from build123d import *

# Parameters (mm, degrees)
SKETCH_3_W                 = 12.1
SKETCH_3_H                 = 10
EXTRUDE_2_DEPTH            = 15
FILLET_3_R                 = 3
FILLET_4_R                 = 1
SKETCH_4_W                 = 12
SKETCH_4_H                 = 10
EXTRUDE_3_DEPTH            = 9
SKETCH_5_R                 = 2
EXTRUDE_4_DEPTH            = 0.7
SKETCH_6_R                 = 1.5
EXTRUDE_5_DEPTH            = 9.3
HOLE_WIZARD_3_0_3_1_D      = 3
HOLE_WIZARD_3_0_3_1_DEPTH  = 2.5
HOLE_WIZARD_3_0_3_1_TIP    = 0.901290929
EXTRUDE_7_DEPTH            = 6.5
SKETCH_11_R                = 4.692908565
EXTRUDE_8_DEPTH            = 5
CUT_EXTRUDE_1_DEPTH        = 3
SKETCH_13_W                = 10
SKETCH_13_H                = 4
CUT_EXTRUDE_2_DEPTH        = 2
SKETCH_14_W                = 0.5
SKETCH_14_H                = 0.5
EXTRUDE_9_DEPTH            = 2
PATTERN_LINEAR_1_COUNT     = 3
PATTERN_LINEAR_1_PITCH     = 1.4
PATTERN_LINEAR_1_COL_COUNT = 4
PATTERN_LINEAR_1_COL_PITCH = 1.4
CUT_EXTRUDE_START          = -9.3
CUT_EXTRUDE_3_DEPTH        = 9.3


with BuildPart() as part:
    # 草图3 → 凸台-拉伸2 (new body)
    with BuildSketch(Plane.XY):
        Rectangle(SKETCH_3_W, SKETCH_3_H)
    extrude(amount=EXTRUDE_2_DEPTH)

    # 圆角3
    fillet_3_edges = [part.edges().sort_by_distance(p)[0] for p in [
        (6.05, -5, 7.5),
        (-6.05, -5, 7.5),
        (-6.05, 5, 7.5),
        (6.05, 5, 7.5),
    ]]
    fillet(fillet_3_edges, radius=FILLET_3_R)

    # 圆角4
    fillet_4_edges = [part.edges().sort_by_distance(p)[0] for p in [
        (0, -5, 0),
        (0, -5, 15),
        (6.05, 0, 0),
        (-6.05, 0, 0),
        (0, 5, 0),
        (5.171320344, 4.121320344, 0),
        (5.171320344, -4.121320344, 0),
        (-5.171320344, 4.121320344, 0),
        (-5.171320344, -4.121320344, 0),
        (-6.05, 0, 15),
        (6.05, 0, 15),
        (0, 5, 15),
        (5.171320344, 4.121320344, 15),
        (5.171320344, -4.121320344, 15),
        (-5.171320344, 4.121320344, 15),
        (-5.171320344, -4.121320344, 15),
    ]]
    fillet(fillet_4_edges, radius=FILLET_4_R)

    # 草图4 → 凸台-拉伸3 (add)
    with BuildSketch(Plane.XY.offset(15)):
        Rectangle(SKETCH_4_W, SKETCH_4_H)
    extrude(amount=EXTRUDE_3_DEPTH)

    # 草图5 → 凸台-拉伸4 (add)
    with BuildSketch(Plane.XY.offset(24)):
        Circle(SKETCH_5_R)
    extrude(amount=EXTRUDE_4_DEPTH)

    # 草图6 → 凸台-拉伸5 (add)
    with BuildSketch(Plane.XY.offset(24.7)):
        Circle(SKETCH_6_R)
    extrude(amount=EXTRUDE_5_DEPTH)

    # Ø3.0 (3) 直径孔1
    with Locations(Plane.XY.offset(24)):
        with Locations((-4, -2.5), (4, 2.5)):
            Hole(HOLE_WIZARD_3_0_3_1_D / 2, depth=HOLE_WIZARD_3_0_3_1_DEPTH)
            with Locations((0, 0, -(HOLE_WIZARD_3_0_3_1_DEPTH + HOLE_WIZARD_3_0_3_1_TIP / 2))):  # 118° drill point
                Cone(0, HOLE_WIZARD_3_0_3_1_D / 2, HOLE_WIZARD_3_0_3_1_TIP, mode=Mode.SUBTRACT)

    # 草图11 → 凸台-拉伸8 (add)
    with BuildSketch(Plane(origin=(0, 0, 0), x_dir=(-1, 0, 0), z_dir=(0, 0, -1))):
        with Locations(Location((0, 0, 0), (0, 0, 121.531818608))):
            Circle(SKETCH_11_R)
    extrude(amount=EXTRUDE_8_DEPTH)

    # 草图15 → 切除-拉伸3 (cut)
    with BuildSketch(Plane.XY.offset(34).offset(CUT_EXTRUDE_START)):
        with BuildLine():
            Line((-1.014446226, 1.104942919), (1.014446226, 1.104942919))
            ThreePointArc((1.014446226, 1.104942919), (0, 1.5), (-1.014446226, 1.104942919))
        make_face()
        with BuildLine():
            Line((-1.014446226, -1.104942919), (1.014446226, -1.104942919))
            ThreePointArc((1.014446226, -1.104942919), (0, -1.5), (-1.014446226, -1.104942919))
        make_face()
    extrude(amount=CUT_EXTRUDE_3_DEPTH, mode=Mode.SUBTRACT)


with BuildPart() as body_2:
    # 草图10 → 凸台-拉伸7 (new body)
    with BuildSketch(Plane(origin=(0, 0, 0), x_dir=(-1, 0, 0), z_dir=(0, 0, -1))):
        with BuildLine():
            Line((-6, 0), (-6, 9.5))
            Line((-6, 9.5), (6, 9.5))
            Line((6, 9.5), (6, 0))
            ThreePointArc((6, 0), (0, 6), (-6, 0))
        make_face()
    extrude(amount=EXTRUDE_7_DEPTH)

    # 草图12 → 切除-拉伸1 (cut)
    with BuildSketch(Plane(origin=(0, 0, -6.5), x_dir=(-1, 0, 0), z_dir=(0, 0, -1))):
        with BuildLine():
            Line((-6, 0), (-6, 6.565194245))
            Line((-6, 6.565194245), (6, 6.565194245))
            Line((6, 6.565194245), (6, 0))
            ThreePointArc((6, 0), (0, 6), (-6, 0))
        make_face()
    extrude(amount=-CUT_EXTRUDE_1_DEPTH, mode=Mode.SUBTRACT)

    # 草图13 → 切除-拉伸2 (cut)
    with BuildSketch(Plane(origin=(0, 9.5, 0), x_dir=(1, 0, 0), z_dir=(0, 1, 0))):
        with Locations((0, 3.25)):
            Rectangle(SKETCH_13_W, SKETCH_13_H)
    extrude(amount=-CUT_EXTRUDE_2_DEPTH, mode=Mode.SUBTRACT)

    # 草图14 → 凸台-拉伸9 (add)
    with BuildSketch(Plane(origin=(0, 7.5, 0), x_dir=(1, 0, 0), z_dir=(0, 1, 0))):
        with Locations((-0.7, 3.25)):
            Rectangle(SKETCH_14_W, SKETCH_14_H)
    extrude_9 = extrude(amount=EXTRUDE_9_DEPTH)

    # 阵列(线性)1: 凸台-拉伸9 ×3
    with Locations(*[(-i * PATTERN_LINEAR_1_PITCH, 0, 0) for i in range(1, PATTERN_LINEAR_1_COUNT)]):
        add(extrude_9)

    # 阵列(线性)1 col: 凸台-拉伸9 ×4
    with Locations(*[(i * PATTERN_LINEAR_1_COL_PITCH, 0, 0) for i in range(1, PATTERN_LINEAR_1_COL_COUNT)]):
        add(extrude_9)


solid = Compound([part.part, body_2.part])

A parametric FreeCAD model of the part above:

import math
import FreeCAD as App
import Part
import Sketcher
from FreeCAD import Vector
Q = App.Units.Quantity


def edges_at(feature, points):
    """Names of the edges that pass closest to the given points."""
    edges = feature.Shape.Edges
    near = lambda p: min(range(len(edges)), key=lambda i: edges[i].distToShape(Part.Vertex(*p))[0])
    return sorted({f"Edge{near(p) + 1}" for p in points})

doc = App.newDocument("Part")
body = doc.addObject("PartDesign::Body", "Body")

# Sketch on XY plane
sketch1 = body.newObject("Sketcher::SketchObject", "Sketch")
sketch1.AttachmentSupport = (doc.getObject("XY_Plane"), [""])
sketch1.MapMode = "FlatFace"
sketch1.addGeometry([
    Part.LineSegment(Vector(-6.05, 5, 0), Vector(-6.05, -5, 0)),
    Part.LineSegment(Vector(-6.05, -5, 0), Vector(6.05, -5, 0)),
    Part.LineSegment(Vector(6.05, -5, 0), Vector(6.05, 5, 0)),
    Part.LineSegment(Vector(6.05, 5, 0), Vector(-6.05, 5, 0)),
], False)
sketch1.addConstraint([
    Sketcher.Constraint("Coincident", 0, 2, 1, 1),
    Sketcher.Constraint("Coincident", 1, 2, 2, 1),
    Sketcher.Constraint("Coincident", 2, 2, 3, 1),
    Sketcher.Constraint("Coincident", 3, 2, 0, 1),
    Sketcher.Constraint("Vertical", 0),
    Sketcher.Constraint("Horizontal", 1),
    Sketcher.Constraint("Vertical", 2),
    Sketcher.Constraint("Horizontal", 3),
    Sketcher.Constraint("Symmetric", 0, 2, 2, 2, -1, 1),
    Sketcher.Constraint("DistanceY", 0, 2, 0, 1, Q("10 mm")),
    Sketcher.Constraint("DistanceX", 1, 1, 1, 2, Q("12.1 mm")),
])
pad1 = body.newObject("PartDesign::Pad", "Pad")
pad1.Profile = sketch1
pad1.Length = 15
doc.recompute()

fillet = body.newObject("PartDesign::Fillet", "Fillet")
fillet.Base = (pad1, edges_at(pad1, [
    (6.05, -5, 7.5),
    (-6.05, -5, 7.5),
    (-6.05, 5, 7.5),
    (6.05, 5, 7.5),
]))
fillet.Radius = 3
doc.recompute()

fillet2 = body.newObject("PartDesign::Fillet", "Fillet001")
fillet2.Base = (fillet, edges_at(fillet, [
    (0, -5, 0),
    (0, -5, 15),
    (6.05, 0, 0),
    (-6.05, 0, 0),
    (0, 5, 0),
    (5.171, 4.121, 0),
    (5.171, -4.121, 0),
    (-5.171, 4.121, 0),
    (-5.171, -4.121, 0),
    (-6.05, 0, 15),
    (6.05, 0, 15),
    (0, 5, 15),
    (5.171, 4.121, 15),
    (5.171, -4.121, 15),
    (-5.171, 4.121, 15),
    (-5.171, -4.121, 15),
]))
fillet2.Radius = 1

# Sketch on XY plane
sketch2 = body.newObject("Sketcher::SketchObject", "Sketch001")
sketch2.AttachmentSupport = (doc.getObject("XY_Plane"), [""])
sketch2.MapMode = "FlatFace"
sketch2.AttachmentOffset = App.Placement(Vector(0, 0, 15), App.Rotation())
sketch2.addGeometry([
    Part.LineSegment(Vector(-6, 5, 0), Vector(-6, -5, 0)),
    Part.LineSegment(Vector(-6, -5, 0), Vector(6, -5, 0)),
    Part.LineSegment(Vector(6, -5, 0), Vector(6, 5, 0)),
    Part.LineSegment(Vector(6, 5, 0), Vector(-6, 5, 0)),
], False)
sketch2.addConstraint([
    Sketcher.Constraint("Coincident", 0, 2, 1, 1),
    Sketcher.Constraint("Coincident", 1, 2, 2, 1),
    Sketcher.Constraint("Coincident", 2, 2, 3, 1),
    Sketcher.Constraint("Coincident", 3, 2, 0, 1),
    Sketcher.Constraint("Vertical", 0),
    Sketcher.Constraint("Horizontal", 1),
    Sketcher.Constraint("Vertical", 2),
    Sketcher.Constraint("Horizontal", 3),
    Sketcher.Constraint("Symmetric", 0, 2, 2, 2, -1, 1),
    Sketcher.Constraint("DistanceX", 1, 1, 1, 2, Q("12 mm")),
    Sketcher.Constraint("DistanceY", 0, 2, 0, 1, Q("10 mm")),
])
pad2 = body.newObject("PartDesign::Pad", "Pad001")
pad2.Profile = sketch2
pad2.Length = 9

# Sketch on XY plane
sketch3 = body.newObject("Sketcher::SketchObject", "Sketch002")
sketch3.AttachmentSupport = (doc.getObject("XY_Plane"), [""])
sketch3.MapMode = "FlatFace"
sketch3.AttachmentOffset = App.Placement(Vector(0, 0, 24), App.Rotation())
sketch3.addGeometry(Part.Circle(Vector(0, 0, 0), Vector(0, 0, 1), 2), False)
sketch3.addConstraint([
    Sketcher.Constraint("Coincident", 0, 3, -1, 1),
    Sketcher.Constraint("Diameter", 0, Q("4 mm")),
])
pad3 = body.newObject("PartDesign::Pad", "Pad002")
pad3.Profile = sketch3
pad3.Length = 0.7

# Sketch on XY plane
sketch4 = body.newObject("Sketcher::SketchObject", "Sketch003")
sketch4.AttachmentSupport = (doc.getObject("XY_Plane"), [""])
sketch4.MapMode = "FlatFace"
sketch4.AttachmentOffset = App.Placement(Vector(0, 0, 24.7), App.Rotation())
sketch4.addGeometry(Part.Circle(Vector(0, 0, 0), Vector(0, 0, 1), 1.5), False)
sketch4.addConstraint([
    Sketcher.Constraint("Coincident", 0, 3, -1, 1),
    Sketcher.Constraint("Diameter", 0, Q("3 mm")),
])
pad4 = body.newObject("PartDesign::Pad", "Pad003")
pad4.Profile = sketch4
pad4.Length = 9.3

# Sketch on XY plane
sketch5 = body.newObject("Sketcher::SketchObject", "Sketch004")
sketch5.AttachmentSupport = (doc.getObject("XY_Plane"), [""])
sketch5.MapMode = "FlatFace"
sketch5.AttachmentOffset = App.Placement(Vector(0, 0, 24), App.Rotation())
sketch5.addGeometry([
    Part.Circle(Vector(-4, -2.5, 0), Vector(0, 0, 1), 1.5),
    Part.Circle(Vector(4, 2.5, 0), Vector(0, 0, 1), 1.5),
], False)
sketch5.addConstraint([
    Sketcher.Constraint("Equal", 0, 1),
    Sketcher.Constraint("Symmetric", 0, 3, 1, 3, -1, 1),
    Sketcher.Constraint("Diameter", 0, Q("3 mm")),
    Sketcher.Constraint("DistanceX", 0, 3, -1, 1, Q("4 mm")),
    Sketcher.Constraint("DistanceY", 0, 3, 1, 3, Q("5 mm")),
])
doc.recompute()
hole = body.newObject("PartDesign::Hole", "Hole")
hole.Profile = sketch5
hole.ThreadType = "None"
hole.Diameter = 3
hole.DepthType = "Dimension"
hole.Depth = 2.5
hole.DrillPoint = "Angled"
hole.DrillPointAngle = 118

# Sketch on XY plane
sketch6 = body.newObject("Sketcher::SketchObject", "Sketch005")
sketch6.AttachmentSupport = (doc.getObject("XY_Plane"), [""])
sketch6.MapMode = "FlatFace"
sketch6.addGeometry(Part.Circle(Vector(0, 0, 0), Vector(0, 0, 1), 4.692909), False)
sketch6.addConstraint([
    Sketcher.Constraint("Coincident", 0, 3, -1, 1),
    Sketcher.Constraint("Diameter", 0, Q("9.385817 mm")),
])
pad5 = body.newObject("PartDesign::Pad", "Pad004")
pad5.Profile = sketch6
pad5.Length = 5
pad5.Reversed = True

# Sketch on XY plane
sketch7 = body.newObject("Sketcher::SketchObject", "Sketch006")
sketch7.AttachmentSupport = (doc.getObject("XY_Plane"), [""])
sketch7.MapMode = "FlatFace"
sketch7.AttachmentOffset = App.Placement(Vector(0, 0, 24.7), App.Rotation())
sketch7.addGeometry([
    Part.LineSegment(Vector(-1.014446, 1.104943, 0), Vector(1.014446, 1.104943, 0)),
    Part.ArcOfCircle(Part.Circle(Vector(0, 0, 0), Vector(0, 0, 1), 1.5), math.radians(47.445011), math.radians(132.554989)),
    Part.LineSegment(Vector(1.014446, -1.104943, 0), Vector(-1.014446, -1.104943, 0)),
    Part.ArcOfCircle(Part.Circle(Vector(0, 0, 0), Vector(0, 0, 1), 1.5), math.radians(-132.554989), math.radians(-47.445011)),
], False)
sketch7.addConstraint([
    Sketcher.Constraint("Coincident", 0, 1, 1, 2),
    Sketcher.Constraint("Coincident", 1, 1, 0, 2),
    Sketcher.Constraint("Coincident", 2, 1, 3, 2),
    Sketcher.Constraint("Coincident", 3, 1, 2, 2),
    Sketcher.Constraint("Horizontal", 0),
    Sketcher.Constraint("Horizontal", 2),
    Sketcher.Constraint("Coincident", 1, 3, -1, 1),
    Sketcher.Constraint("Coincident", 3, 3, -1, 1),
    Sketcher.Constraint("Equal", 1, 3),
    Sketcher.Constraint("Vertical", 1, 1, 2, 1),
    Sketcher.Constraint("Radius", 1, Q("1.5 mm")),
    Sketcher.Constraint("DistanceX", 0, 1, 0, 2, Q("2.028892 mm")),
])
pocket1 = body.newObject("PartDesign::Pocket", "Pocket")
pocket1.Profile = sketch7
pocket1.Length = 9.3
pocket1.Reversed = True
body2 = doc.addObject("PartDesign::Body", "Body001")

# Sketch on XY plane
sketch8 = body2.newObject("Sketcher::SketchObject", "Sketch007")
sketch8.AttachmentSupport = (doc.getObject("XY_Plane001"), [""])
sketch8.MapMode = "FlatFace"
sketch8.addGeometry([
    Part.LineSegment(Vector(6, 9.5, 0), Vector(6, 0, 0)),
    Part.ArcOfCircle(Part.Circle(Vector(0, 0, 0), Vector(0, 0, 1), 6), math.radians(0), math.radians(180)),
    Part.LineSegment(Vector(-6, 0, 0), Vector(-6, 9.5, 0)),
    Part.LineSegment(Vector(-6, 9.5, 0), Vector(6, 9.5, 0)),
], False)
sketch8.addConstraint([
    Sketcher.Constraint("Tangent", 0, 2, 1, 1),
    Sketcher.Constraint("Tangent", 1, 2, 2, 1),
    Sketcher.Constraint("Coincident", 2, 2, 3, 1),
    Sketcher.Constraint("Coincident", 3, 2, 0, 1),
    Sketcher.Constraint("Vertical", 0),
    Sketcher.Constraint("Vertical", 2),
    Sketcher.Constraint("Horizontal", 3),
    Sketcher.Constraint("Coincident", 1, 3, -1, 1),
    Sketcher.Constraint("Radius", 1, Q("6 mm")),
    Sketcher.Constraint("DistanceY", 0, 2, 0, 1, Q("9.5 mm")),
])
pad6 = body2.newObject("PartDesign::Pad", "Pad005")
pad6.Profile = sketch8
pad6.Length = 6.5
pad6.Reversed = True

# Sketch on XY plane
sketch9 = body2.newObject("Sketcher::SketchObject", "Sketch008")
sketch9.AttachmentSupport = (doc.getObject("XY_Plane001"), [""])
sketch9.MapMode = "FlatFace"
sketch9.AttachmentOffset = App.Placement(Vector(0, 0, -6.5), App.Rotation())
sketch9.addGeometry([
    Part.LineSegment(Vector(6, 6.565194, 0), Vector(6, 0, 0)),
    Part.ArcOfCircle(Part.Circle(Vector(0, 0, 0), Vector(0, 0, 1), 6), math.radians(0), math.radians(180)),
    Part.LineSegment(Vector(-6, 0, 0), Vector(-6, 6.565194, 0)),
    Part.LineSegment(Vector(-6, 6.565194, 0), Vector(6, 6.565194, 0)),
], False)
sketch9.addConstraint([
    Sketcher.Constraint("Tangent", 0, 2, 1, 1),
    Sketcher.Constraint("Tangent", 1, 2, 2, 1),
    Sketcher.Constraint("Coincident", 2, 2, 3, 1),
    Sketcher.Constraint("Coincident", 3, 2, 0, 1),
    Sketcher.Constraint("Vertical", 0),
    Sketcher.Constraint("Vertical", 2),
    Sketcher.Constraint("Horizontal", 3),
    Sketcher.Constraint("Coincident", 1, 3, -1, 1),
    Sketcher.Constraint("Radius", 1, Q("6 mm")),
    Sketcher.Constraint("DistanceY", 0, 2, 0, 1, Q("6.565194 mm")),
])
pocket2 = body2.newObject("PartDesign::Pocket", "Pocket001")
pocket2.Profile = sketch9
pocket2.Length = 3
pocket2.Reversed = True

# Sketch on XZ plane
sketch10 = body2.newObject("Sketcher::SketchObject", "Sketch009")
sketch10.AttachmentSupport = (doc.getObject("XZ_Plane001"), [""])
sketch10.MapMode = "FlatFace"
sketch10.AttachmentOffset = App.Placement(Vector(0, 0, -9.5), App.Rotation())
sketch10.addGeometry([
    Part.LineSegment(Vector(-5, -5.25, 0), Vector(-5, -1.25, 0)),
    Part.LineSegment(Vector(-5, -1.25, 0), Vector(5, -1.25, 0)),
    Part.LineSegment(Vector(5, -1.25, 0), Vector(5, -5.25, 0)),
    Part.LineSegment(Vector(5, -5.25, 0), Vector(-5, -5.25, 0)),
], False)
sketch10.addConstraint([
    Sketcher.Constraint("Coincident", 0, 2, 1, 1),
    Sketcher.Constraint("Coincident", 1, 2, 2, 1),
    Sketcher.Constraint("Coincident", 2, 2, 3, 1),
    Sketcher.Constraint("Coincident", 3, 2, 0, 1),
    Sketcher.Constraint("Vertical", 0),
    Sketcher.Constraint("Horizontal", 1),
    Sketcher.Constraint("Vertical", 2),
    Sketcher.Constraint("Horizontal", 3),
    Sketcher.Constraint("DistanceX", 1, 1, 1, 2, Q("10 mm")),
    Sketcher.Constraint("DistanceY", 0, 1, 0, 2, Q("4 mm")),
    Sketcher.Constraint("DistanceX", 0, 2, -1, 1, Q("5 mm")),
    Sketcher.Constraint("DistanceY", 0, 2, -1, 1, Q("1.25 mm")),
])
pocket3 = body2.newObject("PartDesign::Pocket", "Pocket002")
pocket3.Profile = sketch10
pocket3.Length = 2
pocket3.Reversed = True

# Sketch on XZ plane
sketch11 = body2.newObject("Sketcher::SketchObject", "Sketch010")
sketch11.AttachmentSupport = (doc.getObject("XZ_Plane001"), [""])
sketch11.MapMode = "FlatFace"
sketch11.AttachmentOffset = App.Placement(Vector(0, 0, -7.5), App.Rotation())
sketch11.addGeometry([
    Part.LineSegment(Vector(-0.95, -3.5, 0), Vector(-0.95, -3, 0)),
    Part.LineSegment(Vector(-0.95, -3, 0), Vector(-0.45, -3, 0)),
    Part.LineSegment(Vector(-0.45, -3, 0), Vector(-0.45, -3.5, 0)),
    Part.LineSegment(Vector(-0.45, -3.5, 0), Vector(-0.95, -3.5, 0)),
], False)
sketch11.addConstraint([
    Sketcher.Constraint("Coincident", 0, 2, 1, 1),
    Sketcher.Constraint("Coincident", 1, 2, 2, 1),
    Sketcher.Constraint("Coincident", 2, 2, 3, 1),
    Sketcher.Constraint("Coincident", 3, 2, 0, 1),
    Sketcher.Constraint("Vertical", 0),
    Sketcher.Constraint("Horizontal", 1),
    Sketcher.Constraint("Vertical", 2),
    Sketcher.Constraint("Horizontal", 3),
    Sketcher.Constraint("Equal", 3, 0),
    Sketcher.Constraint("DistanceX", 1, 1, 1, 2, Q("0.5 mm")),
    Sketcher.Constraint("DistanceY", 0, 2, -1, 1, Q("3 mm")),
    Sketcher.Constraint("DistanceX", 0, 2, -1, 1, Q("0.95 mm")),
])
pad7 = body2.newObject("PartDesign::Pad", "Pad006")
pad7.Profile = sketch11
pad7.Length = 2
pad7.Reversed = True
doc.recompute()

linearpattern = body2.newObject("PartDesign::LinearPattern", "LinearPattern")
linearpattern.Originals = [pad7]
linearpattern.Direction = (doc.getObject("X_Axis001"), [""])
linearpattern.Mode = "offset"
linearpattern.Offset = 1.4
linearpattern.Occurrences = 3
linearpattern.Reversed = True
body2.Tip = linearpattern
doc.recompute()

linearpattern2 = body2.newObject("PartDesign::LinearPattern", "LinearPattern001")
linearpattern2.Originals = [pad7]
linearpattern2.Direction = (doc.getObject("X_Axis001"), [""])
linearpattern2.Mode = "offset"
linearpattern2.Offset = 1.4
linearpattern2.Occurrences = 4
body2.Tip = linearpattern2

doc.recompute()
